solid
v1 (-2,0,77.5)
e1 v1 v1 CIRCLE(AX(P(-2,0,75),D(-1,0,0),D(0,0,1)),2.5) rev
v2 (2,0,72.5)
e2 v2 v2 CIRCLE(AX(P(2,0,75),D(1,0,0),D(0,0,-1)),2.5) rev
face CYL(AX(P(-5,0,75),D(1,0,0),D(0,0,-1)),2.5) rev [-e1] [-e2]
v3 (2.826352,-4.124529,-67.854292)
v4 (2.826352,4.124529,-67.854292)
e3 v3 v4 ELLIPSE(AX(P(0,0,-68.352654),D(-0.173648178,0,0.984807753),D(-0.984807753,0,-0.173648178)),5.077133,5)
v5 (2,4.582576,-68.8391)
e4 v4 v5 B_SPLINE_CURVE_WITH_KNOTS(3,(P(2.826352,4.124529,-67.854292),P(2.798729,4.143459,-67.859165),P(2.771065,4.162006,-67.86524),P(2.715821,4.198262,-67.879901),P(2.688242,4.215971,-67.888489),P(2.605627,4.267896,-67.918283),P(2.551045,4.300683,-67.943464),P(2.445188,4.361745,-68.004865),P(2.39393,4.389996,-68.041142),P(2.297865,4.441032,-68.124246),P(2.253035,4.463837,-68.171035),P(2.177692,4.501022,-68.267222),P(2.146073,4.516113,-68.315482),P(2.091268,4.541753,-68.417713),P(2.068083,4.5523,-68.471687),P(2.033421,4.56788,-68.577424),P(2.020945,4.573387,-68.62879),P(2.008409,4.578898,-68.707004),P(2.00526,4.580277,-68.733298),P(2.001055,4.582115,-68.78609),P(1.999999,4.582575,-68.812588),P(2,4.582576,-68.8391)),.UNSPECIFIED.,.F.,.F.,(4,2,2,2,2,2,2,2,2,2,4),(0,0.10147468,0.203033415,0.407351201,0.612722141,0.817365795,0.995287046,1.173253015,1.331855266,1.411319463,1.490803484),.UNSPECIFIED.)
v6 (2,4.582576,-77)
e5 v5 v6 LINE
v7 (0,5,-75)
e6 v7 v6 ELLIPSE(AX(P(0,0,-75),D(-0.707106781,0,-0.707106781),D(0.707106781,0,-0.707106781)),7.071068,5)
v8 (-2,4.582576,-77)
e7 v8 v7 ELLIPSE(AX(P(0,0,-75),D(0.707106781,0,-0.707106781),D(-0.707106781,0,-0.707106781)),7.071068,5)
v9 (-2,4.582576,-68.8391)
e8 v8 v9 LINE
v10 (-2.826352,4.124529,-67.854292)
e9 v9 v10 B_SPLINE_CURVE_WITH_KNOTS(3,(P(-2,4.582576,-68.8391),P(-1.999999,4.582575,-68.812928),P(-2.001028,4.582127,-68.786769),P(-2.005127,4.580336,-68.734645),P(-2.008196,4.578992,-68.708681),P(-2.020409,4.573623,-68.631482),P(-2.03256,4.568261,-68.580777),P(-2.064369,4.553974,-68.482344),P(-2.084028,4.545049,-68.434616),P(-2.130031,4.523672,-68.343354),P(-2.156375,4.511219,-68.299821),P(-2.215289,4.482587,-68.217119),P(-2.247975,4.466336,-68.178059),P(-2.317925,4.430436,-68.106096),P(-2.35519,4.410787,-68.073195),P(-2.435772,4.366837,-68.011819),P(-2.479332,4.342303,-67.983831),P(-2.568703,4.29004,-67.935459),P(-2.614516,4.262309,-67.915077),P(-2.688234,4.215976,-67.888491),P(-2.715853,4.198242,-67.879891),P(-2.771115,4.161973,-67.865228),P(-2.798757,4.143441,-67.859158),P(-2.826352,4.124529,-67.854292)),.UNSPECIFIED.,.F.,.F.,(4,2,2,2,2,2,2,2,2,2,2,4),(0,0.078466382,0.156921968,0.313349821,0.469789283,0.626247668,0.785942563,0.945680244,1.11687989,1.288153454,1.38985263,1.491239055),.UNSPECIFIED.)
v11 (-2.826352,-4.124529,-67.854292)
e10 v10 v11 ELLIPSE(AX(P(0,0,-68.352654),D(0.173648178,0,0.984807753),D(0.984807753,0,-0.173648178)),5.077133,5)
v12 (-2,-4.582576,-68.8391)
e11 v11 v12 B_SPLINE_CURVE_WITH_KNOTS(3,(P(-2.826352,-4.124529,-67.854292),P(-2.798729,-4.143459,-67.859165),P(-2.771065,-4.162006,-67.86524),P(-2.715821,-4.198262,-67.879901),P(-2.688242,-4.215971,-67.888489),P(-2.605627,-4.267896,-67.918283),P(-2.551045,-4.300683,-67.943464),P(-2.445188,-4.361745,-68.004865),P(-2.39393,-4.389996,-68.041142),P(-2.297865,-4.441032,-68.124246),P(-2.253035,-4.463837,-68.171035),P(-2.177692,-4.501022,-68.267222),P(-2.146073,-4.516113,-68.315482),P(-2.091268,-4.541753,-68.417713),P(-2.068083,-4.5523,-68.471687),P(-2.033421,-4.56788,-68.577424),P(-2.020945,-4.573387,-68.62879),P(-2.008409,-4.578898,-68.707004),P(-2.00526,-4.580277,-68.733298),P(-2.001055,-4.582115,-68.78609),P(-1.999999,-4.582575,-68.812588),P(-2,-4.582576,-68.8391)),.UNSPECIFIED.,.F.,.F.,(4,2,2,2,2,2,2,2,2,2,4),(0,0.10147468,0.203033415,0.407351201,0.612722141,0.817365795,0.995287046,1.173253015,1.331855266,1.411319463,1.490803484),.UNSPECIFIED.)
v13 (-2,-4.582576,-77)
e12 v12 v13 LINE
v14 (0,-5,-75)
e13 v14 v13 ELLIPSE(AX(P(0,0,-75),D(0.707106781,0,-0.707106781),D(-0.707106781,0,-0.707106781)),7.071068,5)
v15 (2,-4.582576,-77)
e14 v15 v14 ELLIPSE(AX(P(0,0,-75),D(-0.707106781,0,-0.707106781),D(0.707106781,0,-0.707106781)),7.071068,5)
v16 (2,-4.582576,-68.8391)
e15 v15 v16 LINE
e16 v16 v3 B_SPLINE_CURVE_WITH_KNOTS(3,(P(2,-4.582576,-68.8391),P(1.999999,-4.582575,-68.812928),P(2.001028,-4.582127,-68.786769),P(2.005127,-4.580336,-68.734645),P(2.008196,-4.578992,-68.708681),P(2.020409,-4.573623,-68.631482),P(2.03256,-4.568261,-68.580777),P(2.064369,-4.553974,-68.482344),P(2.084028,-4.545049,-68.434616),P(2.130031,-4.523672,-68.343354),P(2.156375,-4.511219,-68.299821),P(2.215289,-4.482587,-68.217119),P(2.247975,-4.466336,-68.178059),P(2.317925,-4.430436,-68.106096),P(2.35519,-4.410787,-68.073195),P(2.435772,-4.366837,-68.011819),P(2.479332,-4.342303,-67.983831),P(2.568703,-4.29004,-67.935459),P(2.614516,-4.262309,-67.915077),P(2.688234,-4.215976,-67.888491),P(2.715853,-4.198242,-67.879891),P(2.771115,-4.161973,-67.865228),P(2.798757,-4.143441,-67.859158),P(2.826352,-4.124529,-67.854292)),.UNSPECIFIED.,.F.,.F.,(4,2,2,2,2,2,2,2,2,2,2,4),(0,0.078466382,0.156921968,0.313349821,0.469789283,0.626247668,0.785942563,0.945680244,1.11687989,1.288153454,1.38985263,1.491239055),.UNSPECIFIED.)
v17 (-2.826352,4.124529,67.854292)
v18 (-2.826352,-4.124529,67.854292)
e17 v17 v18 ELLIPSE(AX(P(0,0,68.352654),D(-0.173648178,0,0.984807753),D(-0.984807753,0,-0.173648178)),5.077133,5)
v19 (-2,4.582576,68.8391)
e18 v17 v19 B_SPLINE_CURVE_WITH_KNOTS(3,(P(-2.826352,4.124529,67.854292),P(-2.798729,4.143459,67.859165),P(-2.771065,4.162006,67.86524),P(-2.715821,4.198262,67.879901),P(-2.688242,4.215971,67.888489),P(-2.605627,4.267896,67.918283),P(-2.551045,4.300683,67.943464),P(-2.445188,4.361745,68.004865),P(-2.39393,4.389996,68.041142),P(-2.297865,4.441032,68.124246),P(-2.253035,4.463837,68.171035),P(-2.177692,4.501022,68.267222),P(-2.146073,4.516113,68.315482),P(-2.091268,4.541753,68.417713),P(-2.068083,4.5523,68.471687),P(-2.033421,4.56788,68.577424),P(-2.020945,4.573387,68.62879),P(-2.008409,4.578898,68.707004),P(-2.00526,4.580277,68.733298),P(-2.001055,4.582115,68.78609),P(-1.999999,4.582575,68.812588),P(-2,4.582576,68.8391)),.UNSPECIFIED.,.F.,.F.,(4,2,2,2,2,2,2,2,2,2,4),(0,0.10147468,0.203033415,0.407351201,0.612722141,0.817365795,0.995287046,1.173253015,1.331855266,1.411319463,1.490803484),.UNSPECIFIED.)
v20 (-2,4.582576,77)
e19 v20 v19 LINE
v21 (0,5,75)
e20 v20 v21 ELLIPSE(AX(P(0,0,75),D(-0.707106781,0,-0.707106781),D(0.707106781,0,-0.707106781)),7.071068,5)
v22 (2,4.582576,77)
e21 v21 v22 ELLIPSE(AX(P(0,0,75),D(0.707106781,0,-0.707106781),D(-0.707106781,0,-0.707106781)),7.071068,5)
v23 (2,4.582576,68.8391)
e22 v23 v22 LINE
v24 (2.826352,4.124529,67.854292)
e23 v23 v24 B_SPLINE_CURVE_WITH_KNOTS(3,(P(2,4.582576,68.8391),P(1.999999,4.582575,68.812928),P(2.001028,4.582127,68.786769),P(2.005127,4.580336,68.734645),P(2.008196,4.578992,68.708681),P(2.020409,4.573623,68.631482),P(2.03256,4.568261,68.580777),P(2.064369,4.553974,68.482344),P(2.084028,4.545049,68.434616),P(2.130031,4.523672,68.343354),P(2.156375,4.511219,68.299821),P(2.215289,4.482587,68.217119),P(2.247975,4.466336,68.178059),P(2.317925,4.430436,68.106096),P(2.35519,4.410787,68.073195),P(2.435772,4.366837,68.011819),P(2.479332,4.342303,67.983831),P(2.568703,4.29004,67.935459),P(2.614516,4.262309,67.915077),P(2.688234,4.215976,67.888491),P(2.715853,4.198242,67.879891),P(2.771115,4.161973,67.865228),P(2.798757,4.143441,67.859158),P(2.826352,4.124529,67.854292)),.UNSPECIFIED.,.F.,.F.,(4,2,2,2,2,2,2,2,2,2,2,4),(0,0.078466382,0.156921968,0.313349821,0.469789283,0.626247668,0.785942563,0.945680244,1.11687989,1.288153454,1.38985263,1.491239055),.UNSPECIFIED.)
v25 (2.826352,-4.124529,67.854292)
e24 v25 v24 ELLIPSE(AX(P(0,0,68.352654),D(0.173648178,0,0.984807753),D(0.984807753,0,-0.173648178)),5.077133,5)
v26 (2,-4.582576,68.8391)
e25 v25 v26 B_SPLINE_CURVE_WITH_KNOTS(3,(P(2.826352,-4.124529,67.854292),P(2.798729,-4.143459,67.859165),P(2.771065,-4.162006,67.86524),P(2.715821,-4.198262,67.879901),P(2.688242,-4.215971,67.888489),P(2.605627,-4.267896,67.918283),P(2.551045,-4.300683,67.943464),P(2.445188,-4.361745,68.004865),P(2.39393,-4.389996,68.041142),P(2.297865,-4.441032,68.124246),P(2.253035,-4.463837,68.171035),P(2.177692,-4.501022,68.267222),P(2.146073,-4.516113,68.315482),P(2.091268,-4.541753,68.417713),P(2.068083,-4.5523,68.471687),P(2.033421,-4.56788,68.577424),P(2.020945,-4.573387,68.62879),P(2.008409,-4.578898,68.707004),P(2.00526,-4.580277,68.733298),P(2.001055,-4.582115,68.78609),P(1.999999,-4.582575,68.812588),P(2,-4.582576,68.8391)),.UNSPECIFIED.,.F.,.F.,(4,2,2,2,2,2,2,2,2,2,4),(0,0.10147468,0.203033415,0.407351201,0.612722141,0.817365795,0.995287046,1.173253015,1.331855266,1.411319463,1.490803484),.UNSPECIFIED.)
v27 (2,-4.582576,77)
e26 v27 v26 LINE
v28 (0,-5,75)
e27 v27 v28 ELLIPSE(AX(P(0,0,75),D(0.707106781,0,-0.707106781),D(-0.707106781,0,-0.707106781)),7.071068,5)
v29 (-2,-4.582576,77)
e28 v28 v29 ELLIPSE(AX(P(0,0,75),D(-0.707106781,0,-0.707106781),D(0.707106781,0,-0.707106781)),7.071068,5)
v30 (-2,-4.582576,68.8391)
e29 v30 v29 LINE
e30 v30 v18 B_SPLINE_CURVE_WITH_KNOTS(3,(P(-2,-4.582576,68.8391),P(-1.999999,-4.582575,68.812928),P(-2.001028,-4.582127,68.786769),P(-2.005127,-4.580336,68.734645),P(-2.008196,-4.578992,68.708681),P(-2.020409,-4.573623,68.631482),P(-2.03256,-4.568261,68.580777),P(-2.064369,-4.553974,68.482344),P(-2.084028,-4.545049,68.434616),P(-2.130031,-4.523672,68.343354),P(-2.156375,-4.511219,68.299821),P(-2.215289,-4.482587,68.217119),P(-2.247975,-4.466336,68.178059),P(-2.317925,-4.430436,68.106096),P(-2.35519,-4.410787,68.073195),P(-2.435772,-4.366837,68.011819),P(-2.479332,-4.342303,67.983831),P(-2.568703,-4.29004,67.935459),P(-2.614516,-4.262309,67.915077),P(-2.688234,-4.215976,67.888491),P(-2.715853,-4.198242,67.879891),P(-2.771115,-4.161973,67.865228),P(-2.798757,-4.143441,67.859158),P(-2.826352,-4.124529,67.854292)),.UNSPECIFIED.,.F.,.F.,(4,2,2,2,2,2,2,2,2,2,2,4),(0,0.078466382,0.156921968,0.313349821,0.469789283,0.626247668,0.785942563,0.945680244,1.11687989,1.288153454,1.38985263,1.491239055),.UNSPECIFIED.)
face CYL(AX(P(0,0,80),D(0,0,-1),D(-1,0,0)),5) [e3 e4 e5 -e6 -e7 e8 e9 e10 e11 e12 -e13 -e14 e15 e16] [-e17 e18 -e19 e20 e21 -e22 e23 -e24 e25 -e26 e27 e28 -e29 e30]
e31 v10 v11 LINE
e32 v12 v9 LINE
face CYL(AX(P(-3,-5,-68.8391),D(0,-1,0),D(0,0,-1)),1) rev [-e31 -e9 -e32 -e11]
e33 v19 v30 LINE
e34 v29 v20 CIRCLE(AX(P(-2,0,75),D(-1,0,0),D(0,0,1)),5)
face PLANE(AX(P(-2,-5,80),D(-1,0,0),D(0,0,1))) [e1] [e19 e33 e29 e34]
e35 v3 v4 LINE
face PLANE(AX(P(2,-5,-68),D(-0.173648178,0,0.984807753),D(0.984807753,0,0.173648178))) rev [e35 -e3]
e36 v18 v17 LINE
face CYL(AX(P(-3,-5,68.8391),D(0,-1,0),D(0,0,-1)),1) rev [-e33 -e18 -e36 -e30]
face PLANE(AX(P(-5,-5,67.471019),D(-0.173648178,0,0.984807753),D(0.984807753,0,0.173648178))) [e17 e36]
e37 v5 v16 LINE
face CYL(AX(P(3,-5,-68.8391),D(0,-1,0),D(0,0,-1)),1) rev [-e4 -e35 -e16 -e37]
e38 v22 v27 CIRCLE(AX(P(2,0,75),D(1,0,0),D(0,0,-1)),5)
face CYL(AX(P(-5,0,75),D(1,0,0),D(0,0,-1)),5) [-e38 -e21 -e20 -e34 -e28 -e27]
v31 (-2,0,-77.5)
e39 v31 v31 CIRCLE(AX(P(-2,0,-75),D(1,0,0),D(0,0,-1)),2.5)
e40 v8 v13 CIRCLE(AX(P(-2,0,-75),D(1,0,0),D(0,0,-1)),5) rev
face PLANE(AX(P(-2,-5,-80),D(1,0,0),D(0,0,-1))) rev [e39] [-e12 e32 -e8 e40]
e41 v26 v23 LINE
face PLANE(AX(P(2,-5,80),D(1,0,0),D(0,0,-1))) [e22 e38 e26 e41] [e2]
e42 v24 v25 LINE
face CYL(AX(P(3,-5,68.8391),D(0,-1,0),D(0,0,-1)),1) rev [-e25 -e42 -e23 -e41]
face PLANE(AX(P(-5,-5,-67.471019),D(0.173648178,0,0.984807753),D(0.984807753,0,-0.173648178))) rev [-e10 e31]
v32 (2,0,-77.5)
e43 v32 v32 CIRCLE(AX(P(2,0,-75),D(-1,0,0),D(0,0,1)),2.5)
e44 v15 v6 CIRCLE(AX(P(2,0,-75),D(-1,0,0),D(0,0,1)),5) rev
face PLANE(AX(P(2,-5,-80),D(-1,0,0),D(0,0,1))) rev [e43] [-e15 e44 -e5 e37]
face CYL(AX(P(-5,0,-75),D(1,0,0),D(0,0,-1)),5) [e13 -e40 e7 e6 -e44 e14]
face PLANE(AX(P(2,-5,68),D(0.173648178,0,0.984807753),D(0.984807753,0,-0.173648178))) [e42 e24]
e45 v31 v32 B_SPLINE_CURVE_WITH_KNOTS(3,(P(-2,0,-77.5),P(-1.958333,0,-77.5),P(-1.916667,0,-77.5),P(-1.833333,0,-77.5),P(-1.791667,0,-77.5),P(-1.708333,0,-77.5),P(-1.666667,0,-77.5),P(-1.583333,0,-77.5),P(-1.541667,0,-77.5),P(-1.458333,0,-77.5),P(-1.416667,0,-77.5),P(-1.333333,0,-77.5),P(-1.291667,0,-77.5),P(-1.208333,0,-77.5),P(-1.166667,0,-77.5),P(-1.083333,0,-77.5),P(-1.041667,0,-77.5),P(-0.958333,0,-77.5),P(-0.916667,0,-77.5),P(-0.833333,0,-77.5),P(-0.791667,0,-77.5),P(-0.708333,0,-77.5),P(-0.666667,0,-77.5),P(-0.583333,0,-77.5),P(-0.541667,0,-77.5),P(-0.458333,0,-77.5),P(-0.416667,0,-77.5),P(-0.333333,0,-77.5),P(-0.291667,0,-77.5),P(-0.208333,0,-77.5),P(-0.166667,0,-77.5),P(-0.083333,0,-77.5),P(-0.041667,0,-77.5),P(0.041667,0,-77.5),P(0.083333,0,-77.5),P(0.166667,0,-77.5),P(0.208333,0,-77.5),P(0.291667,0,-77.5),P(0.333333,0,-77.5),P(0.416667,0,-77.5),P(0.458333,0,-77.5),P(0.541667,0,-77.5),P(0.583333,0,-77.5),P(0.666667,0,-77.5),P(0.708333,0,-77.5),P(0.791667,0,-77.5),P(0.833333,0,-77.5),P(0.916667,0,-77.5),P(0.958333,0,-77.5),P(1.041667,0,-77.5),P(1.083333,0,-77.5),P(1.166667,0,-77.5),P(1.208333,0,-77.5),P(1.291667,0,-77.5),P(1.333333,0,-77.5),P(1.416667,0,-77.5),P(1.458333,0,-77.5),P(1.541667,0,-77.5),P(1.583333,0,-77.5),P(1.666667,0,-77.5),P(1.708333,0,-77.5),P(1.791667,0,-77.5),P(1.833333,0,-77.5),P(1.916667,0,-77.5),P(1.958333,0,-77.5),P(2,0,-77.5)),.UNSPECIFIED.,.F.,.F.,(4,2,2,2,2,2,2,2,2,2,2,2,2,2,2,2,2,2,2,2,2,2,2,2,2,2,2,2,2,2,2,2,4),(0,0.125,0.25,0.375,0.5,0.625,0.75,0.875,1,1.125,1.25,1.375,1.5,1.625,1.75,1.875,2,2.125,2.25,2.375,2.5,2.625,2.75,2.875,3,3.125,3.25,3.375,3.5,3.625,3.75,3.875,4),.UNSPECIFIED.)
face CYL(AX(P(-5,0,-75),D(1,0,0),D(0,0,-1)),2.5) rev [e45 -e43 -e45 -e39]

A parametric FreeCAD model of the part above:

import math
import FreeCAD as App
import Part
import Sketcher
Q = App.Units.Quantity


def edges_at(feature, points):
    """Names of the edges that pass closest to the given points."""
    edges = feature.Shape.Edges
    near = lambda p: min(range(len(edges)), key=lambda i: edges[i].distToShape(Part.Vertex(*p))[0])
    return sorted({f"Edge{near(p) + 1}" for p in points})

doc = App.newDocument("Part")
params = doc.addObject("Spreadsheet::Sheet", "Params")
for row, (alias, value) in enumerate([
    ("sketch1_diameter", "10 mm"),
    ("pad1_length", "160 mm"),
    ("sketch2_radius", "5 mm"),
    ("pocket1_length", "162.623784 mm"),
    ("sketch3_width", "3 mm"),
    ("sketch3_height", "12 mm"),
    ("pocket2_length", "162.623784 mm"),
    ("sketch4_diameter", "5 mm"),
    ("pocket3_length", "162.922342 mm"),
    ("fillet_radius", "1 mm"),
    ("fillet2_radius", "1 mm"),
], start=1):
    params.set(f"A{row}", alias)
    params.set(f"B{row}", "=" + value)
    params.setAlias(f"B{row}", alias)

body = doc.addObject("PartDesign::Body", "Body")

sketch1 = doc.addObject("Sketcher::SketchObject", "Sketch")
body.addObject(sketch1)
sketch1.AttachmentSupport = (doc.XY_Plane, [""])
sketch1.MapMode = "FlatFace"
sketch1.addGeometry(Part.Circle(App.Vector(0, 0, 0), App.Vector(0, 0, 1), 5), False)
sketch1.addConstraint(Sketcher.Constraint("Coincident", 0, 3, -1, 1))
sketch1.addConstraint(Sketcher.Constraint("Diameter", 0, 10.0))
sketch1.setExpression("Constraints[1]", "Params.sketch1_diameter")
pad1 = doc.addObject("PartDesign::Pad", "Pad")
body.addObject(pad1)
pad1.Profile = sketch1
pad1.setExpression("Length", "Params.pad1_length")
pad1.Midplane = True

sketch2 = doc.addObject("Sketcher::SketchObject", "Sketch001")
body.addObject(sketch2)
sketch2.AttachmentSupport = (doc.YZ_Plane, [""])
sketch2.MapMode = "FlatFace"
sketch2.addGeometry(Part.LineSegment(App.Vector(0, -80, 0), App.Vector(5, -80, 0)), False)
sketch2.addGeometry(Part.LineSegment(App.Vector(5, -80, 0), App.Vector(5, -75, 0)), False)
sketch2.addGeometry(Part.ArcOfCircle(Part.Circle(App.Vector(0, -75, 0), App.Vector(0, 0, 1), 5), math.radians(-90), math.radians(0)), False)
sketch2.addGeometry(Part.LineSegment(App.Vector(-5, -80, 0), App.Vector(0, -80, 0)), False)
sketch2.addGeometry(Part.ArcOfCircle(Part.Circle(App.Vector(0, -75, 0), App.Vector(0, 0, 1), 5), math.radians(180), math.radians(270)), False)
sketch2.addGeometry(Part.LineSegment(App.Vector(-5, -75, 0), App.Vector(-5, -80, 0)), False)
sketch2.addConstraint(Sketcher.Constraint("Coincident", 0, 2, 1, 1))
sketch2.addConstraint(Sketcher.Constraint("Tangent", 1, 2, 2, 2))
sketch2.addConstraint(Sketcher.Constraint("Tangent", 2, 1, 0, 1))
sketch2.addConstraint(Sketcher.Constraint("Tangent", 3, 2, 4, 2))
sketch2.addConstraint(Sketcher.Constraint("Tangent", 4, 1, 5, 1))
sketch2.addConstraint(Sketcher.Constraint("Coincident", 5, 2, 3, 1))
sketch2.addConstraint(Sketcher.Constraint("Horizontal", 0))
sketch2.addConstraint(Sketcher.Constraint("Vertical", 1))
sketch2.addConstraint(Sketcher.Constraint("Horizontal", 3))
sketch2.addConstraint(Sketcher.Constraint("Vertical", 5))
sketch2.addConstraint(Sketcher.Constraint("Coincident", 4, 3, 2, 3))
sketch2.addConstraint(Sketcher.Constraint("Equal", 2, 4))
sketch2.addConstraint(Sketcher.Constraint("PointOnObject", 2, 3, -2))
sketch2.addConstraint(Sketcher.Constraint("Radius", 2, 5.0))
sketch2.addConstraint(Sketcher.Constraint("DistanceY", 2, 3, -1, 1, 75.0))
sketch2.setExpression("Constraints[13]", "Params.sketch2_radius")
pocket1 = doc.addObject("PartDesign::Pocket", "Pocket")
body.addObject(pocket1)
pocket1.Profile = sketch2
pocket1.setExpression("Length", "Params.pocket1_length")
pocket1.Midplane = True

sketch3 = doc.addObject("Sketcher::SketchObject", "Sketch002")
body.addObject(sketch3)
sketch3.AttachmentSupport = (doc.XZ_Plane, [""])
sketch3.MapMode = "FlatFace"
sketch3.addGeometry(Part.LineSegment(App.Vector(-2, -68, 0), App.Vector(-2, -80, 0)), False)
sketch3.addGeometry(Part.LineSegment(App.Vector(-2, -80, 0), App.Vector(-5, -80, 0)), False)
sketch3.addGeometry(Part.LineSegment(App.Vector(-5, -80, 0), App.Vector(-5, -67.5, 0)), False)
sketch3.addGeometry(Part.LineSegment(App.Vector(-5, -67.5, 0), App.Vector(-2, -68, 0)), False)
sketch3.addGeometry(Part.LineSegment(App.Vector(5, -80, 0), App.Vector(2, -80, 0)), False)
sketch3.addGeometry(Part.LineSegment(App.Vector(2, -80, 0), App.Vector(2, -68, 0)), False)
sketch3.addGeometry(Part.LineSegment(App.Vector(2, -68, 0), App.Vector(5, -67.5, 0)), False)
sketch3.addGeometry(Part.LineSegment(App.Vector(5, -67.5, 0), App.Vector(5, -80, 0)), False)
sketch3.addConstraint(Sketcher.Constraint("Coincident", 0, 2, 1, 1))
sketch3.addConstraint(Sketcher.Constraint("Coincident", 1, 2, 2, 1))
sketch3.addConstraint(Sketcher.Constraint("Coincident", 2, 2, 3, 1))
sketch3.addConstraint(Sketcher.Constraint("Coincident", 3, 2, 0, 1))
sketch3.addConstraint(Sketcher.Constraint("Coincident", 4, 2, 5, 1))
sketch3.addConstraint(Sketcher.Constraint("Coincident", 5, 2, 6, 1))
sketch3.addConstraint(Sketcher.Constraint("Coincident", 6, 2, 7, 1))
sketch3.addConstraint(Sketcher.Constraint("Coincident", 7, 2, 4, 1))
sketch3.addConstraint(Sketcher.Constraint("Vertical", 0))
sketch3.addConstraint(Sketcher.Constraint("Horizontal", 1))
sketch3.addConstraint(Sketcher.Constraint("Vertical", 2))
sketch3.addConstraint(Sketcher.Constraint("Horizontal", 4))
sketch3.addConstraint(Sketcher.Constraint("Vertical", 5))
sketch3.addConstraint(Sketcher.Constraint("Vertical", 7))
sketch3.addConstraint(Sketcher.Constraint("Symmetric", 0, 2, 4, 2, -2))
sketch3.addConstraint(Sketcher.Constraint("Symmetric", 2, 2, 6, 2, -2))
sketch3.addConstraint(Sketcher.Constraint("Horizontal", 3, 2, 5, 2))
sketch3.addConstraint(Sketcher.Constraint("DistanceX", 1, 2, 1, 1, 3.0))
sketch3.addConstraint(Sketcher.Constraint("DistanceY", 0, 2, 0, 1, 12.0))
sketch3.addConstraint(Sketcher.Constraint("Angle", 3, Q("-10 deg")))
sketch3.addConstraint(Sketcher.Constraint("DistanceX", 0, 2, -1, 1, 2.0))
sketch3.addConstraint(Sketcher.Constraint("DistanceY", 0, 2, -1, 1, 80.0))
sketch3.setExpression("Constraints[17]", "Params.sketch3_width")
sketch3.setExpression("Constraints[18]", "Params.sketch3_height")
pocket2 = doc.addObject("PartDesign::Pocket", "Pocket001")
body.addObject(pocket2)
pocket2.Profile = sketch3
pocket2.setExpression("Length", "Params.pocket2_length")
pocket2.Midplane = True

sketch4 = doc.addObject("Sketcher::SketchObject", "Sketch003")
body.addObject(sketch4)
sketch4.AttachmentSupport = (doc.YZ_Plane, [""])
sketch4.MapMode = "FlatFace"
sketch4.AttachmentOffset = App.Placement(App.Vector(0, 0, -2), App.Rotation())
sketch4.addGeometry(Part.Circle(App.Vector(0, -75, 0), App.Vector(0, 0, 1), 2.5), False)
sketch4.addConstraint(Sketcher.Constraint("PointOnObject", 0, 3, -2))
sketch4.addConstraint(Sketcher.Constraint("Diameter", 0, 5.0))
sketch4.addConstraint(Sketcher.Constraint("DistanceY", 0, 3, -1, 1, 75.0))
sketch4.setExpression("Constraints[1]", "Params.sketch4_diameter")
pocket3 = doc.addObject("PartDesign::Pocket", "Pocket002")
body.addObject(pocket3)
pocket3.Profile = sketch4
pocket3.setExpression("Length", "Params.pocket3_length")
pocket3.Midplane = True
doc.recompute()

fillet = doc.addObject("PartDesign::Fillet", "Fillet")
body.addObject(fillet)
fillet.Base = (pocket3, edges_at(pocket3, [(-2, 0, -68), (2, 0, -68)]))
fillet.setExpression("Radius", "Params.fillet_radius")
doc.recompute()

mirrored = doc.addObject("PartDesign::Mirrored", "Mirrored")
body.addObject(mirrored)
mirrored.Originals = [pocket1, pocket2, pocket3]
mirrored.MirrorPlane = (doc.XY_Plane, [""])
body.Tip = mirrored
doc.recompute()

fillet2 = doc.addObject("PartDesign::Fillet", "Fillet001")
body.addObject(fillet2)
fillet2.Base = (mirrored, edges_at(mirrored, [(-2, 0, 68), (2, 0, 68)]))
fillet2.setExpression("Radius", "Params.fillet2_radius")

doc.recompute()
